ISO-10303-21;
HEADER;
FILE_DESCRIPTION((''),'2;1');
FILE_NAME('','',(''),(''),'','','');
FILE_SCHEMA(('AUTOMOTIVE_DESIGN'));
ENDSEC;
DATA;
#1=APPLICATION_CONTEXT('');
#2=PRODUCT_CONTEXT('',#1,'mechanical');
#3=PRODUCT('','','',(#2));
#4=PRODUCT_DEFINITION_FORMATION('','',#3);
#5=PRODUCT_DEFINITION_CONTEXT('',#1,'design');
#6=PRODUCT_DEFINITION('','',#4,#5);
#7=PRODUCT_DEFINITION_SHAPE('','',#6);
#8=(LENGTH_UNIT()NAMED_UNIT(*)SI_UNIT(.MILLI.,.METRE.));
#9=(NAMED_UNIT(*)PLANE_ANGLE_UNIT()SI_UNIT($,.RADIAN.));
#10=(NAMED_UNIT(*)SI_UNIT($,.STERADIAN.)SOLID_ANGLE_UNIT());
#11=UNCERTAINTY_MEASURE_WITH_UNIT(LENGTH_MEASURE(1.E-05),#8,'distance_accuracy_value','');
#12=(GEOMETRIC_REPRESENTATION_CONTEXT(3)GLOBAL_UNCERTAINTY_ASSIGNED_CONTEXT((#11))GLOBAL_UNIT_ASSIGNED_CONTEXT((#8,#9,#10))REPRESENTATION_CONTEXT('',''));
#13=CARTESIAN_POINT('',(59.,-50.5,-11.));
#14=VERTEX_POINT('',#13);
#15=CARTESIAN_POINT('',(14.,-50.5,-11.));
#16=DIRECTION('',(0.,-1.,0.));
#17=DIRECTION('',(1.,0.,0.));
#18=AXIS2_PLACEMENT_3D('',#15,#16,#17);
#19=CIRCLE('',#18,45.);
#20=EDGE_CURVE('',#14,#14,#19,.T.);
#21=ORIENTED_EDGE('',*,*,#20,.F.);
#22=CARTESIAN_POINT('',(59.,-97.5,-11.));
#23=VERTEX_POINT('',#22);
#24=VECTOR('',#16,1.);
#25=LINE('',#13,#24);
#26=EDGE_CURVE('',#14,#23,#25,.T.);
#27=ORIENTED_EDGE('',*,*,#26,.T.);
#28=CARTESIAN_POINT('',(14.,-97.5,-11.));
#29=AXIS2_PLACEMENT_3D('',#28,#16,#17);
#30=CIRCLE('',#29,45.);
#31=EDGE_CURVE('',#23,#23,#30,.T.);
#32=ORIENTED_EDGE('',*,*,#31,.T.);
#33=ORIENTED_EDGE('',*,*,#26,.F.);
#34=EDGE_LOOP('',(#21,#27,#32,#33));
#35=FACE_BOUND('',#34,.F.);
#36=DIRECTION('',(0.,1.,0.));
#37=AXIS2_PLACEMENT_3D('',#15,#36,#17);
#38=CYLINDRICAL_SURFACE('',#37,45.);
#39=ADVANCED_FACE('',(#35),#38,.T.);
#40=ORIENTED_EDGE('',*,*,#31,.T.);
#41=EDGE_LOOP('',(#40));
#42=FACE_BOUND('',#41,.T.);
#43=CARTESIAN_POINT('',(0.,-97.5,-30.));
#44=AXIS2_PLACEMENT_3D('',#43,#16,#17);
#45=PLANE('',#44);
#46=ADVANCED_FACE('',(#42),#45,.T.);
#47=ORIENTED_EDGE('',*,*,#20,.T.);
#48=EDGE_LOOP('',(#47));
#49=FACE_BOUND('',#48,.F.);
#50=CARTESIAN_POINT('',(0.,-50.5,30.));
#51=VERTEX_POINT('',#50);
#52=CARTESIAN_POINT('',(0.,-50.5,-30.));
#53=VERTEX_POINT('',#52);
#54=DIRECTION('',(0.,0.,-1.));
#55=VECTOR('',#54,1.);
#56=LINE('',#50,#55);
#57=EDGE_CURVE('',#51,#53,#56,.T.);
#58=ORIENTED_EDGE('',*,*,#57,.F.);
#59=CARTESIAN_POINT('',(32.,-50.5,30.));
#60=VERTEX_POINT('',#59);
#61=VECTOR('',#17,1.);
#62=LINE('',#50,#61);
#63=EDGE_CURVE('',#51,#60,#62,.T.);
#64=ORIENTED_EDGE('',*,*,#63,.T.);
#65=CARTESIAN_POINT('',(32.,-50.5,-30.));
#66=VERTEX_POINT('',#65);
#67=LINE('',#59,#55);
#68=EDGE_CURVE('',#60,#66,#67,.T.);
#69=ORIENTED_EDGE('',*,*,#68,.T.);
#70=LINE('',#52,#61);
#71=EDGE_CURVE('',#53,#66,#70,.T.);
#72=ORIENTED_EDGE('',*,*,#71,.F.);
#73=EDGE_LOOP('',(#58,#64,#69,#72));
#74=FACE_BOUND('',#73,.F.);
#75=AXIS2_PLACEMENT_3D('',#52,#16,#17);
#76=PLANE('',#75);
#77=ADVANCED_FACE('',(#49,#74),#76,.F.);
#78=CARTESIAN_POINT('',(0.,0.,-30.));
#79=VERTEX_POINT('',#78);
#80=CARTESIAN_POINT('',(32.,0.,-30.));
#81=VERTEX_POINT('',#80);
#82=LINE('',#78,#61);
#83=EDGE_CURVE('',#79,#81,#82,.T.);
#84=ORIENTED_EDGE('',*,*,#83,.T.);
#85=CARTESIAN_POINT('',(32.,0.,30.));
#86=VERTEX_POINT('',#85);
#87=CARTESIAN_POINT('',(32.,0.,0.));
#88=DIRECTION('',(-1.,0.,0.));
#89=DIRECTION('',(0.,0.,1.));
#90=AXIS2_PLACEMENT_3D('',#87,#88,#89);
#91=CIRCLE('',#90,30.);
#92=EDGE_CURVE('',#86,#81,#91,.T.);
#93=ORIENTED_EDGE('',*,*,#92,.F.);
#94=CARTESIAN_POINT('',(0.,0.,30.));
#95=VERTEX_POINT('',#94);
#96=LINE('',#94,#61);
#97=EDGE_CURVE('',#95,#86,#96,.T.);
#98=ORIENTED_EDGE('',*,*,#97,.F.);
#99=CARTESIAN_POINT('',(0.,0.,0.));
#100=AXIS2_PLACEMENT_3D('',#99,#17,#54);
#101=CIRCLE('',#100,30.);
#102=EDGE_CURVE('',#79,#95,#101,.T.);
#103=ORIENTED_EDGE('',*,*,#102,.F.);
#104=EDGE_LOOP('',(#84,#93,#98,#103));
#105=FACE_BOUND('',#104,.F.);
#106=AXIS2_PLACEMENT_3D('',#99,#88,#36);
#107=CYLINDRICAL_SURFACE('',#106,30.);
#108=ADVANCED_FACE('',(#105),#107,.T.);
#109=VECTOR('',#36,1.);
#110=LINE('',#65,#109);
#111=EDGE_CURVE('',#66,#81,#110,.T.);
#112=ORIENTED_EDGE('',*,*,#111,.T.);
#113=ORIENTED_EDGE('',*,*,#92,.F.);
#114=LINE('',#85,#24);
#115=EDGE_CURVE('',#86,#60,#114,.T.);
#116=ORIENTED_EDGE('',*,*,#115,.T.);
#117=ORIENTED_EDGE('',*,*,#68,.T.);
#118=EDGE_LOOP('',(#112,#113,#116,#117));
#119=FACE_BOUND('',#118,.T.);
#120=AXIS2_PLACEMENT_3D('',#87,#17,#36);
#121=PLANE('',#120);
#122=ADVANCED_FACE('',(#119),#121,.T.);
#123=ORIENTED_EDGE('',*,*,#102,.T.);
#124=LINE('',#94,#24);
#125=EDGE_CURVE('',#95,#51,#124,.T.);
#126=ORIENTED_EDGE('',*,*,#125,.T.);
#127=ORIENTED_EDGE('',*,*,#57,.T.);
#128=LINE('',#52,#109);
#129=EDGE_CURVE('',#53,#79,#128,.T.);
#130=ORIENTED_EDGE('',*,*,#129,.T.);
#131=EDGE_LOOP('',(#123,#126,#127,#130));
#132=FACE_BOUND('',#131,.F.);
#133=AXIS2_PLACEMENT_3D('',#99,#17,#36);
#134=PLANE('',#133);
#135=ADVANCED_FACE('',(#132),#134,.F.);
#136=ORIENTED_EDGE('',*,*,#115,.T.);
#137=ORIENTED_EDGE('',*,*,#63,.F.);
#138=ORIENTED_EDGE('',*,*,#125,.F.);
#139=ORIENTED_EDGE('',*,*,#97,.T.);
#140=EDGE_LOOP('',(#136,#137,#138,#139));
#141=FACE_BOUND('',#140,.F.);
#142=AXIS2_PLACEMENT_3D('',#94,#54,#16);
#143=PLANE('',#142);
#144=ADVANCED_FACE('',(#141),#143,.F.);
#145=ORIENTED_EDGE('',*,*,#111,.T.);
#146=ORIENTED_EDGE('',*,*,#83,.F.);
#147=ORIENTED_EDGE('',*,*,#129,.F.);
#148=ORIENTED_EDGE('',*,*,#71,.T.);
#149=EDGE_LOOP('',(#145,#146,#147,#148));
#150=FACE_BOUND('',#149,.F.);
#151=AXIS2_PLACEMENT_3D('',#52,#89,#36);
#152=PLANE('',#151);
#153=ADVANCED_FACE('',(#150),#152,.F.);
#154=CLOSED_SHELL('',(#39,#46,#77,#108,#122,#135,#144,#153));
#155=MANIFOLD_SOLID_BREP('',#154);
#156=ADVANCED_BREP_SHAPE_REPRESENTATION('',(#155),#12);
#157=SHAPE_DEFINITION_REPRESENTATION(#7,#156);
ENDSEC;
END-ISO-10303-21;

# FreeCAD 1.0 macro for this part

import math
import FreeCAD as App
import Part
import Sketcher

V = App.Vector
Q = App.Units.Quantity

doc = App.newDocument("Part")
body = doc.addObject("PartDesign::Body", "Body")

# Sketch on YZ plane
sketch1 = doc.addObject("Sketcher::SketchObject", "Sketch")
body.addObject(sketch1)
sketch1.AttachmentSupport = (doc.YZ_Plane, [""])
sketch1.MapMode = "FlatFace"
sketch1.addGeometry([
    Part.ArcOfCircle(Part.Circle(V(0, 0, 0), V(0, 0, 1), 30), math.radians(-90), math.radians(90)),
    Part.LineSegment(V(0, 30, 0), V(-50, 30, 0)),
    Part.LineSegment(V(-50, 30, 0), V(-50, -30, 0)),
    Part.LineSegment(V(-50, -30, 0), V(0, -30, 0)),
], False)
sketch1.addConstraint([
    Sketcher.Constraint("Tangent", 0, 2, 1, 1),
    Sketcher.Constraint("Coincident", 1, 2, 2, 1),
    Sketcher.Constraint("Coincident", 2, 2, 3, 1),
    Sketcher.Constraint("Tangent", 3, 2, 0, 1),
    Sketcher.Constraint("Horizontal", 1),
    Sketcher.Constraint("Vertical", 2),
    Sketcher.Constraint("Horizontal", 3),
    Sketcher.Constraint("Coincident", 0, 3, -1, 1),
    Sketcher.Constraint("Radius", 0, Q("30 mm")),
    Sketcher.Constraint("DistanceX", 1, 2, 1, 1, Q("50.5 mm")),
])
pad1 = doc.addObject("PartDesign::Pad", "Pad")
body.addObject(pad1)
pad1.Profile = sketch1
pad1.Length = 32

# Sketch on XZ plane
sketch2 = doc.addObject("Sketcher::SketchObject", "Sketch001")
body.addObject(sketch2)
sketch2.AttachmentSupport = (doc.XZ_Plane, [""])
sketch2.MapMode = "FlatFace"
sketch2.AttachmentOffset = App.Placement(V(0, 0, 50.5), App.Rotation())
sketch2.addGeometry(Part.Circle(V(14, -11, 0), V(0, 0, 1), 45), False)
sketch2.addConstraint([
    Sketcher.Constraint("Diameter", 0, Q("90 mm")),
    Sketcher.Constraint("DistanceX", -1, 1, 0, 3, Q("14 mm")),
    Sketcher.Constraint("DistanceY", 0, 3, -1, 1, Q("11 mm")),
])
pad2 = doc.addObject("PartDesign::Pad", "Pad001")
body.addObject(pad2)
pad2.Profile = sketch2
pad2.Length = 47

doc.recompute()
